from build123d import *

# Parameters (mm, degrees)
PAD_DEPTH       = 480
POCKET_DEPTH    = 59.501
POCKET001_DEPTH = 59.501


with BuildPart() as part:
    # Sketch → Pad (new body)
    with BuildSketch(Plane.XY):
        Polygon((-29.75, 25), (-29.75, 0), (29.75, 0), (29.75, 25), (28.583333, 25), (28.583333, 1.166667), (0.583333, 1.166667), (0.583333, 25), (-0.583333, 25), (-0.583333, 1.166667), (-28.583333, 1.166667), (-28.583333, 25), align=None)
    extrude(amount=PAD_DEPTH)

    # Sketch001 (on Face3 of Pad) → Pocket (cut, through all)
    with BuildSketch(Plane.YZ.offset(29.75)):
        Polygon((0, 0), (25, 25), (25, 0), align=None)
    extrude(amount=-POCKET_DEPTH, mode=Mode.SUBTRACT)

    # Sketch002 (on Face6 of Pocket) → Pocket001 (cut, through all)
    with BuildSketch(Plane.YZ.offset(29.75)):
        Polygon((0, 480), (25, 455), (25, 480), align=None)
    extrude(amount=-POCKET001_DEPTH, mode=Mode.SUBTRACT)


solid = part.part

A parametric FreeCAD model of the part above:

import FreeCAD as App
import Part
import Sketcher

V = App.Vector

doc = App.newDocument("Part")
body = doc.addObject("PartDesign::Body", "Body")

# Sketch on XY plane
sketch1 = doc.addObject("Sketcher::SketchObject", "Sketch")
body.addObject(sketch1)
sketch1.AttachmentSupport = (doc.XY_Plane, [""])
sketch1.MapMode = "FlatFace"
sketch1.addGeometry(Part.LineSegment(V(-29.8, 25, 0), V(-29.8, 0, 0)), False)
sketch1.addGeometry(Part.LineSegment(V(-29.8, 0, 0), V(29.8, 0, 0)), False)
sketch1.addGeometry(Part.LineSegment(V(29.8, 0, 0), V(29.8, 25, 0)), False)
sketch1.addGeometry(Part.LineSegment(V(29.8, 25, 0), V(28.6, 25, 0)), False)
sketch1.addGeometry(Part.LineSegment(V(28.6, 25, 0), V(28.6, 1.2, 0)), False)
sketch1.addGeometry(Part.LineSegment(V(28.6, 1.2, 0), V(0.6, 1.2, 0)), False)
sketch1.addGeometry(Part.LineSegment(V(0.6, 1.2, 0), V(0.6, 25, 0)), False)
sketch1.addGeometry(Part.LineSegment(V(0.6, 25, 0), V(-0.6, 25, 0)), False)
sketch1.addGeometry(Part.LineSegment(V(-0.6, 25, 0), V(-0.6, 1.2, 0)), False)
sketch1.addGeometry(Part.LineSegment(V(-0.6, 1.2, 0), V(-28.6, 1.2, 0)), False)
sketch1.addGeometry(Part.LineSegment(V(-28.6, 1.2, 0), V(-28.6, 25, 0)), False)
sketch1.addGeometry(Part.LineSegment(V(-28.6, 25, 0), V(-29.8, 25, 0)), False)
sketch1.addConstraint(Sketcher.Constraint("Coincident", 0, 2, 1, 1))
sketch1.addConstraint(Sketcher.Constraint("Coincident", 1, 2, 2, 1))
sketch1.addConstraint(Sketcher.Constraint("Coincident", 2, 2, 3, 1))
sketch1.addConstraint(Sketcher.Constraint("Coincident", 3, 2, 4, 1))
sketch1.addConstraint(Sketcher.Constraint("Coincident", 4, 2, 5, 1))
sketch1.addConstraint(Sketcher.Constraint("Coincident", 5, 2, 6, 1))
sketch1.addConstraint(Sketcher.Constraint("Coincident", 6, 2, 7, 1))
sketch1.addConstraint(Sketcher.Constraint("Coincident", 7, 2, 8, 1))
sketch1.addConstraint(Sketcher.Constraint("Coincident", 8, 2, 9, 1))
sketch1.addConstraint(Sketcher.Constraint("Coincident", 9, 2, 10, 1))
sketch1.addConstraint(Sketcher.Constraint("Coincident", 10, 2, 11, 1))
sketch1.addConstraint(Sketcher.Constraint("Coincident", 11, 2, 0, 1))
sketch1.addConstraint(Sketcher.Constraint("Vertical", 0))
sketch1.addConstraint(Sketcher.Constraint("Horizontal", 1))
sketch1.addConstraint(Sketcher.Constraint("Vertical", 2))
sketch1.addConstraint(Sketcher.Constraint("Horizontal", 3))
sketch1.addConstraint(Sketcher.Constraint("Vertical", 4))
sketch1.addConstraint(Sketcher.Constraint("Horizontal", 5))
sketch1.addConstraint(Sketcher.Constraint("Vertical", 6))
sketch1.addConstraint(Sketcher.Constraint("Horizontal", 7))
sketch1.addConstraint(Sketcher.Constraint("Vertical", 8))
sketch1.addConstraint(Sketcher.Constraint("Horizontal", 9))
sketch1.addConstraint(Sketcher.Constraint("Vertical", 10))
sketch1.addConstraint(Sketcher.Constraint("Horizontal", 11))
sketch1.addConstraint(Sketcher.Constraint("Symmetric", 0, 2, 1, 2, -1, 1))
sketch1.addConstraint(Sketcher.Constraint("Symmetric", 5, 2, 8, 2, -2))
sketch1.addConstraint(Sketcher.Constraint("Symmetric", 3, 2, 10, 2, -2))
sketch1.addConstraint(Sketcher.Constraint("Horizontal", 3, 2, 6, 2))
sketch1.addConstraint(Sketcher.Constraint("Equal", 3, 7))
sketch1.addConstraint(Sketcher.Constraint("DistanceX", 5, 2, 5, 1, 28.0))
sketch1.addConstraint(Sketcher.Constraint("DistanceY", 0, 2, 0, 1, 25.0))
sketch1.addConstraint(Sketcher.Constraint("DistanceX", 1, 1, 1, 2, 59.5))
sketch1.addConstraint(Sketcher.Constraint("DistanceY", 4, 2, 4, 1, 23.833333))
pad1 = doc.addObject("PartDesign::Pad", "Pad")
body.addObject(pad1)
pad1.Profile = sketch1
pad1.Length = 480

# Sketch on YZ plane
sketch2 = doc.addObject("Sketcher::SketchObject", "Sketch001")
body.addObject(sketch2)
sketch2.AttachmentSupport = (doc.YZ_Plane, [""])
sketch2.MapMode = "FlatFace"
sketch2.AttachmentOffset = App.Placement(V(0, 0, 29.75), App.Rotation())
sketch2.addGeometry(Part.LineSegment(V(25, 25, 0), V(0, 0, 0)), False)
sketch2.addGeometry(Part.LineSegment(V(0, 0, 0), V(25, 0, 0)), False)
sketch2.addGeometry(Part.LineSegment(V(25, 0, 0), V(25, 25, 0)), False)
sketch2.addConstraint(Sketcher.Constraint("Coincident", 0, 2, 1, 1))
sketch2.addConstraint(Sketcher.Constraint("Coincident", 1, 2, 2, 1))
sketch2.addConstraint(Sketcher.Constraint("Coincident", 2, 2, 0, 1))
sketch2.addConstraint(Sketcher.Constraint("Horizontal", 1))
sketch2.addConstraint(Sketcher.Constraint("Vertical", 2))
sketch2.addConstraint(Sketcher.Constraint("Coincident", 0, 2, -1, 1))
sketch2.addConstraint(Sketcher.Constraint("Equal", 1, 2))
sketch2.addConstraint(Sketcher.Constraint("DistanceX", 1, 1, 1, 2, 25.0))
pocket1 = doc.addObject("PartDesign::Pocket", "Pocket")
body.addObject(pocket1)
pocket1.Profile = sketch2
pocket1.Type = "ThroughAll"

# Sketch on YZ plane
sketch3 = doc.addObject("Sketcher::SketchObject", "Sketch002")
body.addObject(sketch3)
sketch3.AttachmentSupport = (doc.YZ_Plane, [""])
sketch3.MapMode = "FlatFace"
sketch3.AttachmentOffset = App.Placement(V(0, 0, 29.75), App.Rotation())
sketch3.addGeometry(Part.LineSegment(V(0, 480, 0), V(25, 455, 0)), False)
sketch3.addGeometry(Part.LineSegment(V(25, 455, 0), V(25, 480, 0)), False)
sketch3.addGeometry(Part.LineSegment(V(25, 480, 0), V(0, 480, 0)), False)
sketch3.addConstraint(Sketcher.Constraint("Coincident", 0, 2, 1, 1))
sketch3.addConstraint(Sketcher.Constraint("Coincident", 1, 2, 2, 1))
sketch3.addConstraint(Sketcher.Constraint("Coincident", 2, 2, 0, 1))
sketch3.addConstraint(Sketcher.Constraint("Vertical", 1))
sketch3.addConstraint(Sketcher.Constraint("Horizontal", 2))
sketch3.addConstraint(Sketcher.Constraint("PointOnObject", 2, 2, -2))
sketch3.addConstraint(Sketcher.Constraint("Equal", 2, 1))
sketch3.addConstraint(Sketcher.Constraint("DistanceX", 2, 2, 2, 1, 25.0))
sketch3.addConstraint(Sketcher.Constraint("DistanceY", -1, 1, 0, 2, 455.0))
pocket2 = doc.addObject("PartDesign::Pocket", "Pocket001")
body.addObject(pocket2)
pocket2.Profile = sketch3
pocket2.Type = "ThroughAll"

doc.recompute()
